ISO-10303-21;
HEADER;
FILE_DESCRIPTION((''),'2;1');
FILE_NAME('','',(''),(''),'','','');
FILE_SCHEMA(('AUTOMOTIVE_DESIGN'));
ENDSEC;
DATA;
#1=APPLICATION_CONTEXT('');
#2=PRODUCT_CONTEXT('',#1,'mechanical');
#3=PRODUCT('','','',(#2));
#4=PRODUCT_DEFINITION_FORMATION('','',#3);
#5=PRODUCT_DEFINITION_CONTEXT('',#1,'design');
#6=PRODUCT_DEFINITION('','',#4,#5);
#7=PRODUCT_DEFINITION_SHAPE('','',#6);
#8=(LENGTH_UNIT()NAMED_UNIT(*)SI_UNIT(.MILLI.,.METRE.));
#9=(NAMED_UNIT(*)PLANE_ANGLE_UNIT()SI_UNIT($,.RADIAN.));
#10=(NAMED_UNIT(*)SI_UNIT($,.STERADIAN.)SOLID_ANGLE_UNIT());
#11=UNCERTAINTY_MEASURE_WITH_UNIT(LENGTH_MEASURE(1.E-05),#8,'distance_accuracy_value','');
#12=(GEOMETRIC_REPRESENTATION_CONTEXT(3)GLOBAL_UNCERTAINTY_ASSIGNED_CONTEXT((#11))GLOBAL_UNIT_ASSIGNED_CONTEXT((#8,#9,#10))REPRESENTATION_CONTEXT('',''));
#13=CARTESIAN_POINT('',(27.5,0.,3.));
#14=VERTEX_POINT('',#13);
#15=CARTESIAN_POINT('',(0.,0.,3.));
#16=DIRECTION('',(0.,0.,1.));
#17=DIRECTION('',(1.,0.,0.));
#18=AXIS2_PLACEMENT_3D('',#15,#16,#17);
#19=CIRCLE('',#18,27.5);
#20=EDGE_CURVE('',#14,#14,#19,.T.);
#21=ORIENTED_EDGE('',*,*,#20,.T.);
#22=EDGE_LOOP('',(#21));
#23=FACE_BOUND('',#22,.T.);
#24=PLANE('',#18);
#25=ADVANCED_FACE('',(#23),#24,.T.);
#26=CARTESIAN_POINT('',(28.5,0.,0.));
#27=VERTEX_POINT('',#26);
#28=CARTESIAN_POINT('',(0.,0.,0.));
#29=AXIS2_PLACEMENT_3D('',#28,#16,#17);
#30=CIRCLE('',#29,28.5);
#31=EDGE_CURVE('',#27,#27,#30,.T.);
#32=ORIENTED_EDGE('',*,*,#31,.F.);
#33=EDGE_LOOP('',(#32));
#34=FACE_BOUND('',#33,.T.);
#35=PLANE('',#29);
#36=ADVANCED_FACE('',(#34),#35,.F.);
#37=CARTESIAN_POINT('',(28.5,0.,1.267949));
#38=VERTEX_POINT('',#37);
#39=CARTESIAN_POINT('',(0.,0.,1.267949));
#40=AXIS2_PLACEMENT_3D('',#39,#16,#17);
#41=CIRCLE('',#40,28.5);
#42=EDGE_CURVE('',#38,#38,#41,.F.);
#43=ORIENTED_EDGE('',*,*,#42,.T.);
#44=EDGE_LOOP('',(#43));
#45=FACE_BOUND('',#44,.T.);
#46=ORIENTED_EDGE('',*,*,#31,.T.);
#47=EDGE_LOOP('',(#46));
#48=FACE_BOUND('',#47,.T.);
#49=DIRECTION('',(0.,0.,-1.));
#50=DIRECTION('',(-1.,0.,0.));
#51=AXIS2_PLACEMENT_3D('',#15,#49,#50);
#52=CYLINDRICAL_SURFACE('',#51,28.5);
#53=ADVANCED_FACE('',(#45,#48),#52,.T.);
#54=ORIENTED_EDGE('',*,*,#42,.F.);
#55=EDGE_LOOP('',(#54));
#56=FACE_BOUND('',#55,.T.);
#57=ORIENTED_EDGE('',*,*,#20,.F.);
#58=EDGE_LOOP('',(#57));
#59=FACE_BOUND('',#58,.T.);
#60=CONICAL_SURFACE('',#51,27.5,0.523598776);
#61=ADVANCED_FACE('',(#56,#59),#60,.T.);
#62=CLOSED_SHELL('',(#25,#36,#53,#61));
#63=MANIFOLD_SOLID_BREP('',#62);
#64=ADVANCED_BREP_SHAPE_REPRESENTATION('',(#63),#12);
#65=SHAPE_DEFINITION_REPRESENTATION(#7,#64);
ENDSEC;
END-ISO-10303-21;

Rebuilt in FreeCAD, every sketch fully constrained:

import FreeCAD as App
import Part
import Sketcher


def edges_at(feature, points):
    """Names of the edges that pass closest to the given points."""
    edges = feature.Shape.Edges
    near = lambda p: min(range(len(edges)), key=lambda i: edges[i].distToShape(Part.Vertex(*p))[0])
    return sorted({f"Edge{near(p) + 1}" for p in points})

doc = App.newDocument("Part")
body = doc.addObject("PartDesign::Body", "Body")

# Sketch on XY plane
sketch1 = body.newObject("Sketcher::SketchObject", "Sketch")
sketch1.AttachmentSupport = (doc.getObject("XY_Plane"), [""])
sketch1.MapMode = "FlatFace"
sketch1.addGeometry(Part.Circle(App.Vector(0, 0, 0), App.Vector(0, 0, 1), 28), False)
sketch1.addConstraint([
    Sketcher.Constraint("Coincident", 0, 3, -1, 1),
    Sketcher.Constraint("Diameter", 0, 57.0),
])
pad1 = body.newObject("PartDesign::Pad", "Pad")
pad1.Profile = sketch1
pad1.Length = 3
doc.recompute()

chamfer = body.newObject("PartDesign::Chamfer", "Chamfer")
chamfer.Base = (pad1, edges_at(pad1, [(-28.5, 0, 3)]))
chamfer.ChamferType = "Two distances"
chamfer.Size = 1
chamfer.Size2 = 1.732051
chamfer.FlipDirection = True

doc.recompute()
